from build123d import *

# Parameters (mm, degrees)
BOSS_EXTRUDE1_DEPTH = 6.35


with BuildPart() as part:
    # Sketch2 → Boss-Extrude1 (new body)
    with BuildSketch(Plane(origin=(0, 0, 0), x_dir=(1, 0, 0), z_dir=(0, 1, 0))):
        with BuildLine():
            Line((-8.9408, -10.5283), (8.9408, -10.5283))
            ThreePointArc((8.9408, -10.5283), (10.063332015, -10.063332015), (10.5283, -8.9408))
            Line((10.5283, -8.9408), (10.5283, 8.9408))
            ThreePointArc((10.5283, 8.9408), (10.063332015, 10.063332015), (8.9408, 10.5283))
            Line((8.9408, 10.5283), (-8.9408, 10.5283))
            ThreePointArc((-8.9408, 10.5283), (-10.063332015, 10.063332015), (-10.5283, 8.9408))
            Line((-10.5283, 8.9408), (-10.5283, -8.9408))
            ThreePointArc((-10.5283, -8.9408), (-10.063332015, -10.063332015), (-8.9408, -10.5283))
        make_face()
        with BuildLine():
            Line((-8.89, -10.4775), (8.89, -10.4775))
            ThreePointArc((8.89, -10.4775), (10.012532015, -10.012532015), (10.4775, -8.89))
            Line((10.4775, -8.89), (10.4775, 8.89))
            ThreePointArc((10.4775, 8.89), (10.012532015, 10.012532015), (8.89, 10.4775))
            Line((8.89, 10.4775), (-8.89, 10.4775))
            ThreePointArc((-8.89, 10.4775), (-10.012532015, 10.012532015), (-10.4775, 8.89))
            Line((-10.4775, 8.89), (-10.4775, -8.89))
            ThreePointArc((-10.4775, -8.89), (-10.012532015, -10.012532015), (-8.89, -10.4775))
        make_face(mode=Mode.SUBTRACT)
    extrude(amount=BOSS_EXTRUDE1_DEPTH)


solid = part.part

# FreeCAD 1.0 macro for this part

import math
import FreeCAD as App
import Part
import Sketcher

V = App.Vector
Q = App.Units.Quantity

doc = App.newDocument("Part")
body = doc.addObject("PartDesign::Body", "Body")

sketch1 = body.newObject("Sketcher::SketchObject", "Sketch")
sketch1.AttachmentSupport = (doc.getObject("XZ_Plane"), [""])
sketch1.MapMode = "FlatFace"
sketch1.addGeometry([
    Part.LineSegment(V(-8.9408, 10.5283, 0), V(8.9408, 10.5283, 0)),
    Part.ArcOfCircle(Part.Circle(V(8.9408, 8.9408, 0), V(0, 0, 1), 1.5875), math.radians(0), math.radians(90)),
    Part.LineSegment(V(10.5283, 8.9408, 0), V(10.5283, -8.9408, 0)),
    Part.ArcOfCircle(Part.Circle(V(8.9408, -8.9408, 0), V(0, 0, 1), 1.5875), math.radians(-90), math.radians(0)),
    Part.LineSegment(V(8.9408, -10.5283, 0), V(-8.9408, -10.5283, 0)),
    Part.ArcOfCircle(Part.Circle(V(-8.9408, -8.9408, 0), V(0, 0, 1), 1.5875), math.radians(180), math.radians(270)),
    Part.LineSegment(V(-10.5283, -8.9408, 0), V(-10.5283, 8.9408, 0)),
    Part.ArcOfCircle(Part.Circle(V(-8.9408, 8.9408, 0), V(0, 0, 1), 1.5875), math.radians(90), math.radians(180)),
    Part.LineSegment(V(8.89, 10.4775, 0), V(-8.89, 10.4775, 0)),
    Part.ArcOfCircle(Part.Circle(V(-8.89, 8.89, 0), V(0, 0, 1), 1.5875), math.radians(90), math.radians(180)),
    Part.LineSegment(V(-10.4775, 8.89, 0), V(-10.4775, -8.89, 0)),
    Part.ArcOfCircle(Part.Circle(V(-8.89, -8.89, 0), V(0, 0, 1), 1.5875), math.radians(180), math.radians(270)),
    Part.LineSegment(V(-8.89, -10.4775, 0), V(8.89, -10.4775, 0)),
    Part.ArcOfCircle(Part.Circle(V(8.89, -8.89, 0), V(0, 0, 1), 1.5875), math.radians(-90), math.radians(0)),
    Part.LineSegment(V(10.4775, -8.89, 0), V(10.4775, 8.89, 0)),
    Part.ArcOfCircle(Part.Circle(V(8.89, 8.89, 0), V(0, 0, 1), 1.5875), math.radians(0), math.radians(90)),
], False)
sketch1.addConstraint([
    Sketcher.Constraint("Tangent", 0, 2, 1, 2),
    Sketcher.Constraint("Tangent", 1, 1, 2, 1),
    Sketcher.Constraint("Tangent", 2, 2, 3, 2),
    Sketcher.Constraint("Tangent", 3, 1, 4, 1),
    Sketcher.Constraint("Tangent", 4, 2, 5, 2),
    Sketcher.Constraint("Tangent", 5, 1, 6, 1),
    Sketcher.Constraint("Tangent", 6, 2, 7, 2),
    Sketcher.Constraint("Tangent", 7, 1, 0, 1),
    Sketcher.Constraint("Tangent", 8, 2, 9, 1),
    Sketcher.Constraint("Tangent", 9, 2, 10, 1),
    Sketcher.Constraint("Tangent", 10, 2, 11, 1),
    Sketcher.Constraint("Tangent", 11, 2, 12, 1),
    Sketcher.Constraint("Tangent", 12, 2, 13, 1),
    Sketcher.Constraint("Tangent", 13, 2, 14, 1),
    Sketcher.Constraint("Tangent", 14, 2, 15, 1),
    Sketcher.Constraint("Tangent", 15, 2, 8, 1),
    Sketcher.Constraint("Horizontal", 0),
    Sketcher.Constraint("Vertical", 2),
    Sketcher.Constraint("Horizontal", 4),
    Sketcher.Constraint("Vertical", 6),
    Sketcher.Constraint("Horizontal", 8),
    Sketcher.Constraint("Vertical", 10),
    Sketcher.Constraint("Horizontal", 12),
    Sketcher.Constraint("Vertical", 14),
    Sketcher.Constraint("Equal", 1, 3),
    Sketcher.Constraint("Equal", 3, 5),
    Sketcher.Constraint("Equal", 5, 7),
    Sketcher.Constraint("Equal", 7, 9),
    Sketcher.Constraint("Equal", 9, 11),
    Sketcher.Constraint("Equal", 11, 13),
    Sketcher.Constraint("Equal", 13, 15),
    Sketcher.Constraint("Symmetric", 1, 3, 5, 3, -1, 1),
    Sketcher.Constraint("Symmetric", 9, 3, 13, 3, -1, 1),
    Sketcher.Constraint("Equal", 4, 2),
    Sketcher.Constraint("Equal", 12, 10),
    Sketcher.Constraint("DistanceX", 8, 2, 8, 1, Q("0.7 in")),
    Sketcher.Constraint("Radius", 1, Q("0.0625 in")),
    Sketcher.Constraint("DistanceX", 0, 1, 0, 2, Q("0.704 in")),
])
pad1 = body.newObject("PartDesign::Pad", "Pad")
pad1.Profile = sketch1
pad1.Length = Q("0.25 in")
pad1.Reversed = True

doc.recompute()
